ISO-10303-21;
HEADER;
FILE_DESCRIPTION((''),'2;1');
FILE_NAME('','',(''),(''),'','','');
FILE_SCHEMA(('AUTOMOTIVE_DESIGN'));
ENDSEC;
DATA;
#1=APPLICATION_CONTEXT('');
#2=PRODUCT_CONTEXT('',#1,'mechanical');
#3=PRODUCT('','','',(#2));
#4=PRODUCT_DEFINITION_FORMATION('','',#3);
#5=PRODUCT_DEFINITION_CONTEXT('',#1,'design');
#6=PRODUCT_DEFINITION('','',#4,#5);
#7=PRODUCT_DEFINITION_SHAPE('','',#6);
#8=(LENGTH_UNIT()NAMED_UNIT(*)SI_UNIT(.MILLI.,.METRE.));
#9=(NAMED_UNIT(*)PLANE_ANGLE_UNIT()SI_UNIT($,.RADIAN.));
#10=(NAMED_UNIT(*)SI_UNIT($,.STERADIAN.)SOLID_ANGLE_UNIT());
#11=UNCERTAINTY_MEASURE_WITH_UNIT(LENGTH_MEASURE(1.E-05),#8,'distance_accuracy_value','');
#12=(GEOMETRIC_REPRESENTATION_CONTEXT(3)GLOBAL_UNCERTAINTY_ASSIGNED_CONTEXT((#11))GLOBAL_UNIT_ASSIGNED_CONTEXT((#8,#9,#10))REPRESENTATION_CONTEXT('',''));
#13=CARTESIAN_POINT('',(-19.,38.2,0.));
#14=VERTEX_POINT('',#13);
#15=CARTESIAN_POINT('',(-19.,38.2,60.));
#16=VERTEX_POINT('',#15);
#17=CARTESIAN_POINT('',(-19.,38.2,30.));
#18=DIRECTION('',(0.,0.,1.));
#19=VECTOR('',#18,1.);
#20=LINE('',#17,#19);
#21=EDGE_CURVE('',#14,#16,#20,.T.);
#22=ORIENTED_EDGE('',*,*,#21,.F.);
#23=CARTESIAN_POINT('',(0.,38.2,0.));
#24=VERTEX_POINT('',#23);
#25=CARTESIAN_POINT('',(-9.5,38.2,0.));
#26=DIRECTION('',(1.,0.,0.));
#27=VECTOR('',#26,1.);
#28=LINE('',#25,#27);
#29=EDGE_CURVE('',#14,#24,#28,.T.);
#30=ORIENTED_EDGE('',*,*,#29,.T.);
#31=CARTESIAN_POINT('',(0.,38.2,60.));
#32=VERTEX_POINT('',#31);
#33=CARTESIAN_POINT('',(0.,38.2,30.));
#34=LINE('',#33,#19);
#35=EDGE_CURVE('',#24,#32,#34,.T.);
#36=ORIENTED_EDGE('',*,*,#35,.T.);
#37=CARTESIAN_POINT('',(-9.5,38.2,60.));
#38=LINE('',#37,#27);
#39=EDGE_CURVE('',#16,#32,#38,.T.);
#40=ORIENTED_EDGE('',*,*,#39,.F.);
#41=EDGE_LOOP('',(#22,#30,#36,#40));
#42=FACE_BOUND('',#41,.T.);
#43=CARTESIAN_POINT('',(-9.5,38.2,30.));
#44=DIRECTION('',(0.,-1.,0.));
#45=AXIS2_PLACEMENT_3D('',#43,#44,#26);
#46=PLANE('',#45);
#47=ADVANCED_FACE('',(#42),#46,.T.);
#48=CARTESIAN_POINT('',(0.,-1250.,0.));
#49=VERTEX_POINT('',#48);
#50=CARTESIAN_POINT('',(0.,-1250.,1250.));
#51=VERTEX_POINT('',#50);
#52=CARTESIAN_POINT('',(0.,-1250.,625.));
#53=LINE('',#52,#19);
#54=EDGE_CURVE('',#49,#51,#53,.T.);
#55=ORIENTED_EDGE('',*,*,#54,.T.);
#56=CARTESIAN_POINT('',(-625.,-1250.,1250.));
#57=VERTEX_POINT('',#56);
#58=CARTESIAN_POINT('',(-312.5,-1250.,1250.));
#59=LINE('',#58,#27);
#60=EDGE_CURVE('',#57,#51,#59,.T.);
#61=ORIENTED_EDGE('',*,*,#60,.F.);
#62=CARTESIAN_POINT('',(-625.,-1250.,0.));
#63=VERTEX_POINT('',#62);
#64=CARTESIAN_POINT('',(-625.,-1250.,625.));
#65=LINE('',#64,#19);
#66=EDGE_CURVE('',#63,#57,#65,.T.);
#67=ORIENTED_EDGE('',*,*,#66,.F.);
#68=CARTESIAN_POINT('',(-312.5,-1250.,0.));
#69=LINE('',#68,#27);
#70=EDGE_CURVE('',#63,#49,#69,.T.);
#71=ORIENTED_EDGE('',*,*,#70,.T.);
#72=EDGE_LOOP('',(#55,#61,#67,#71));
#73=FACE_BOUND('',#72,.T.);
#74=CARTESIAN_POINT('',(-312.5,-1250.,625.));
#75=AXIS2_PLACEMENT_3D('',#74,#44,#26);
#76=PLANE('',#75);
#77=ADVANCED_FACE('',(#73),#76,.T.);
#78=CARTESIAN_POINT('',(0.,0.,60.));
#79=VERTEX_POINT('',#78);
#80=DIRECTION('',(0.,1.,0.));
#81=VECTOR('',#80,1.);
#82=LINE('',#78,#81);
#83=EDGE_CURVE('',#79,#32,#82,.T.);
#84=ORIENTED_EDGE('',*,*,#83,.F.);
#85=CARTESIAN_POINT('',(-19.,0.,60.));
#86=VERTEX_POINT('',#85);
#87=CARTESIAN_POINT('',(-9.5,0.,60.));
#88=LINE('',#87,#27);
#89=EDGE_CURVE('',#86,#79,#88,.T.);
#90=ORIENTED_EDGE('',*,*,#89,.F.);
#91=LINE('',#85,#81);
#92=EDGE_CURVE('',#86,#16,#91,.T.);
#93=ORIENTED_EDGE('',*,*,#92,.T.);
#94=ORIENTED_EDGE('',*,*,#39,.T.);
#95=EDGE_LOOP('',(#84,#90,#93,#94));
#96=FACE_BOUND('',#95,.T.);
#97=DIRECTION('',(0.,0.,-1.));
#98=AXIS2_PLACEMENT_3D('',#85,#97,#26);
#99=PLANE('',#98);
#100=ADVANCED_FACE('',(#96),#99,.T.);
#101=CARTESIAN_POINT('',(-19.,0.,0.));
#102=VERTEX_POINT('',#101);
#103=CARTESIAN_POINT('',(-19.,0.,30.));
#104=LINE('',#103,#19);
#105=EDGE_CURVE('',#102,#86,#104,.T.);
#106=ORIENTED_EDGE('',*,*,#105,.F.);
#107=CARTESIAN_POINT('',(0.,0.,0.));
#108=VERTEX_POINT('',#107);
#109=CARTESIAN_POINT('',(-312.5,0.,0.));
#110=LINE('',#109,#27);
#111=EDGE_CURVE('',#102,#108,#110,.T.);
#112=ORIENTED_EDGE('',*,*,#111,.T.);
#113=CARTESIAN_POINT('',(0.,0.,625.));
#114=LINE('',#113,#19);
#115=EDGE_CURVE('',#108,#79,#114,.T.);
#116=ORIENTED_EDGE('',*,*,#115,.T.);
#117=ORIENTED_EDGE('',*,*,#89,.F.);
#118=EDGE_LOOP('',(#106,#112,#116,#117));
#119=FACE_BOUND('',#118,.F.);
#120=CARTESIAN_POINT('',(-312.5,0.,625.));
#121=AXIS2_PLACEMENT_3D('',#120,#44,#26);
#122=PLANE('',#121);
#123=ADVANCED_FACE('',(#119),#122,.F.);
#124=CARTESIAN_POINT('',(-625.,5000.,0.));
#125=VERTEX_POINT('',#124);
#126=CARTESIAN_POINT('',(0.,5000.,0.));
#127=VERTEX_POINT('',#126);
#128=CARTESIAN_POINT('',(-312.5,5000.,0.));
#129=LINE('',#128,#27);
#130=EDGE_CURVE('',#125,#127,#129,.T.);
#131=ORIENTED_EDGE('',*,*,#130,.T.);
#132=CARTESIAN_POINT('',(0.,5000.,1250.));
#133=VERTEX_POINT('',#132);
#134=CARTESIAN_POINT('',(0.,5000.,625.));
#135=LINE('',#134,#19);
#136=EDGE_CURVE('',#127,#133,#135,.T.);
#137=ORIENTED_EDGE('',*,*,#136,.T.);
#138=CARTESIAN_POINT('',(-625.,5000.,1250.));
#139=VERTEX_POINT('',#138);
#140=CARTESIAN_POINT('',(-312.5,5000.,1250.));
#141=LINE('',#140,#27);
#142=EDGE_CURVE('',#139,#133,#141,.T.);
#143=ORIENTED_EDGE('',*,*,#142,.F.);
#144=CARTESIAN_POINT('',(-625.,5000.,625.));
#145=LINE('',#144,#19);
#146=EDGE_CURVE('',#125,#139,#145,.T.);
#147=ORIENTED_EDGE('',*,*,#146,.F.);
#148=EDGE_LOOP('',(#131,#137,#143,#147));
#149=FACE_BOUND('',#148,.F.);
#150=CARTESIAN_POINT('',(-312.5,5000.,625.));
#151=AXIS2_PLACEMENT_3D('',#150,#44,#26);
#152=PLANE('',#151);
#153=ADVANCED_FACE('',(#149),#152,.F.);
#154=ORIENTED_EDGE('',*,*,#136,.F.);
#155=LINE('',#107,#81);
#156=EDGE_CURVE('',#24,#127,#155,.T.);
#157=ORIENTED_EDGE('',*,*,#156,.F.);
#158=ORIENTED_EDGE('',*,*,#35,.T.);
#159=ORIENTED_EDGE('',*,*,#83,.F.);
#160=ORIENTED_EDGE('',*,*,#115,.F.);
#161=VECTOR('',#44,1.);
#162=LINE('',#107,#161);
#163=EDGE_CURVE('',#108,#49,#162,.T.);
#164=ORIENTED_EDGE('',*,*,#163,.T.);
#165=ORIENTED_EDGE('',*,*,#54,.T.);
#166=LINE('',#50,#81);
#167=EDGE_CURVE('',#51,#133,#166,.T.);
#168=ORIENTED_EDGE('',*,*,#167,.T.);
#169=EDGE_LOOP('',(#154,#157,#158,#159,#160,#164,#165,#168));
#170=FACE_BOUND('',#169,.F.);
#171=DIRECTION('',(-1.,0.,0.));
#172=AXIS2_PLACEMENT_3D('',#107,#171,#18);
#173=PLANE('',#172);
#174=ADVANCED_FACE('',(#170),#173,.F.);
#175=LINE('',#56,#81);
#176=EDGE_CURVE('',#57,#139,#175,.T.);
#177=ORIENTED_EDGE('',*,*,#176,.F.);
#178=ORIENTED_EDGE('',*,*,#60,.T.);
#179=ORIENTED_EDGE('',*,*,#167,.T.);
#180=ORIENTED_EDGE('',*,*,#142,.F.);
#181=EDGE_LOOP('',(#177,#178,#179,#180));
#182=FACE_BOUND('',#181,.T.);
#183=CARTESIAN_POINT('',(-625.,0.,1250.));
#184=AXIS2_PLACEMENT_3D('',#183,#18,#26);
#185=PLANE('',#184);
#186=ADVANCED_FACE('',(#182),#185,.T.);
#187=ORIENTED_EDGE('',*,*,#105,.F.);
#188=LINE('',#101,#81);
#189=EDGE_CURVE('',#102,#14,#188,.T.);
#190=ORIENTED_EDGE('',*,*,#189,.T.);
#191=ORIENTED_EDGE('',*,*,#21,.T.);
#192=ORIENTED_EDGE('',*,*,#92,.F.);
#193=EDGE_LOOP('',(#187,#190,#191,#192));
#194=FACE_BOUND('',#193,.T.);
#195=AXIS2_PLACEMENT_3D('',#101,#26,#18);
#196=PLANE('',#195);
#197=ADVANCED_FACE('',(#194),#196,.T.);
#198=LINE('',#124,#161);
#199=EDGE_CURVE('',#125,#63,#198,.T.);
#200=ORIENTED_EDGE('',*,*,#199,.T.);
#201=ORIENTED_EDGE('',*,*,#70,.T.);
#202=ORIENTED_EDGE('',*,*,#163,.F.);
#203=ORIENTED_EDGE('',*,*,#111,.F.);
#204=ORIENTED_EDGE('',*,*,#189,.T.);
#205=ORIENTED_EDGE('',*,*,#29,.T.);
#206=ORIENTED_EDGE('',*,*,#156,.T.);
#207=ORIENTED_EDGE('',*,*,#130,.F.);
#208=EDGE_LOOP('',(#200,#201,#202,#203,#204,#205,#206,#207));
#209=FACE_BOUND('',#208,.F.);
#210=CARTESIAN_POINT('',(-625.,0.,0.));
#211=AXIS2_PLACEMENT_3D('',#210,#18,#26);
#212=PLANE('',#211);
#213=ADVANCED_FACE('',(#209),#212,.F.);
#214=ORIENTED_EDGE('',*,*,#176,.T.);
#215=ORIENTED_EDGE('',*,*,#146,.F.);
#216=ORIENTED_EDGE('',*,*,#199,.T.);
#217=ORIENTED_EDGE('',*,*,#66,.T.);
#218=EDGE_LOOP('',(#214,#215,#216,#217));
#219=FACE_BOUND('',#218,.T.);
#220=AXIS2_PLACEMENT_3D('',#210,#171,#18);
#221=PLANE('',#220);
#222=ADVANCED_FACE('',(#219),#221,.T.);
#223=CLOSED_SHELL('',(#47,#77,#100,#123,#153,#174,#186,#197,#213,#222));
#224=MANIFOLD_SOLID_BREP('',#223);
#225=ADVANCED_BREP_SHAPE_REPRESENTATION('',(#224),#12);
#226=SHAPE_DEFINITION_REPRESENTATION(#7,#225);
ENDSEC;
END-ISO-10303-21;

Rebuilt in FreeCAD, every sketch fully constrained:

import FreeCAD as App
import Part
import Sketcher
Q = App.Units.Quantity

doc = App.newDocument("Part")
body = doc.addObject("PartDesign::Body", "Body")

# Sketch on XZ plane
sketch1 = body.newObject("Sketcher::SketchObject", "Sketch")
sketch1.AttachmentSupport = (doc.getObject("XZ_Plane"), [""])
sketch1.MapMode = "FlatFace"
sketch1.addGeometry([
    Part.LineSegment(App.Vector(-625, 1250, 0), App.Vector(-625, 0, 0)),
    Part.LineSegment(App.Vector(-625, 0, 0), App.Vector(0, 0, 0)),
    Part.LineSegment(App.Vector(0, 0, 0), App.Vector(0, 1250, 0)),
    Part.LineSegment(App.Vector(0, 1250, 0), App.Vector(-625, 1250, 0)),
], False)
sketch1.addConstraint([
    Sketcher.Constraint("Coincident", 0, 2, 1, 1),
    Sketcher.Constraint("Coincident", 1, 2, 2, 1),
    Sketcher.Constraint("Coincident", 2, 2, 3, 1),
    Sketcher.Constraint("Coincident", 3, 2, 0, 1),
    Sketcher.Constraint("Vertical", 0),
    Sketcher.Constraint("Horizontal", 1),
    Sketcher.Constraint("Vertical", 2),
    Sketcher.Constraint("Horizontal", 3),
    Sketcher.Constraint("Coincident", 1, 2, -1, 1),
    Sketcher.Constraint("DistanceX", 1, 1, 1, 2, Q("625 mm")),
    Sketcher.Constraint("DistanceY", 0, 2, 0, 1, Q("1250 mm")),
])
pad1 = body.newObject("PartDesign::Pad", "Pad")
pad1.Profile = sketch1
pad1.Length = 5000
pad1.Reversed = True

# Sketch on XZ plane
sketch2 = body.newObject("Sketcher::SketchObject", "Sketch001")
sketch2.AttachmentSupport = (doc.getObject("XZ_Plane"), [""])
sketch2.MapMode = "FlatFace"
sketch2.addGeometry([
    Part.LineSegment(App.Vector(-19, 60, 0), App.Vector(-19, 0, 0)),
    Part.LineSegment(App.Vector(-19, 0, 0), App.Vector(0, 0, 0)),
    Part.LineSegment(App.Vector(0, 0, 0), App.Vector(0, 60, 0)),
    Part.LineSegment(App.Vector(0, 60, 0), App.Vector(-19, 60, 0)),
], False)
sketch2.addConstraint([
    Sketcher.Constraint("Coincident", 0, 2, 1, 1),
    Sketcher.Constraint("Coincident", 1, 2, 2, 1),
    Sketcher.Constraint("Coincident", 2, 2, 3, 1),
    Sketcher.Constraint("Coincident", 3, 2, 0, 1),
    Sketcher.Constraint("Vertical", 0),
    Sketcher.Constraint("Horizontal", 1),
    Sketcher.Constraint("Vertical", 2),
    Sketcher.Constraint("Horizontal", 3),
    Sketcher.Constraint("Coincident", 1, 2, -1, 1),
    Sketcher.Constraint("DistanceX", 1, 1, 1, 2, Q("19 mm")),
    Sketcher.Constraint("DistanceY", 0, 2, 0, 1, Q("60 mm")),
])
pocket1 = body.newObject("PartDesign::Pocket", "Pocket")
pocket1.Profile = sketch2
pocket1.Length = 38.2

# Sketch on XZ plane
sketch3 = body.newObject("Sketcher::SketchObject", "Sketch002")
sketch3.AttachmentSupport = (doc.getObject("XZ_Plane"), [""])
sketch3.MapMode = "FlatFace"
sketch3.addGeometry([
    Part.LineSegment(App.Vector(-625, 1250, 0), App.Vector(-625, 0, 0)),
    Part.LineSegment(App.Vector(-625, 0, 0), App.Vector(0, 0, 0)),
    Part.LineSegment(App.Vector(0, 0, 0), App.Vector(0, 1250, 0)),
    Part.LineSegment(App.Vector(0, 1250, 0), App.Vector(-625, 1250, 0)),
], False)
sketch3.addConstraint([
    Sketcher.Constraint("Coincident", 0, 2, 1, 1),
    Sketcher.Constraint("Coincident", 1, 2, 2, 1),
    Sketcher.Constraint("Coincident", 2, 2, 3, 1),
    Sketcher.Constraint("Coincident", 3, 2, 0, 1),
    Sketcher.Constraint("Vertical", 0),
    Sketcher.Constraint("Horizontal", 1),
    Sketcher.Constraint("Vertical", 2),
    Sketcher.Constraint("Horizontal", 3),
    Sketcher.Constraint("Coincident", 1, 2, -1, 1),
    Sketcher.Constraint("DistanceX", 1, 1, 1, 2, Q("625 mm")),
    Sketcher.Constraint("DistanceY", 0, 2, 0, 1, Q("1250 mm")),
])
pad2 = body.newObject("PartDesign::Pad", "Pad001")
pad2.Profile = sketch3
pad2.Length = 1250

doc.recompute()
